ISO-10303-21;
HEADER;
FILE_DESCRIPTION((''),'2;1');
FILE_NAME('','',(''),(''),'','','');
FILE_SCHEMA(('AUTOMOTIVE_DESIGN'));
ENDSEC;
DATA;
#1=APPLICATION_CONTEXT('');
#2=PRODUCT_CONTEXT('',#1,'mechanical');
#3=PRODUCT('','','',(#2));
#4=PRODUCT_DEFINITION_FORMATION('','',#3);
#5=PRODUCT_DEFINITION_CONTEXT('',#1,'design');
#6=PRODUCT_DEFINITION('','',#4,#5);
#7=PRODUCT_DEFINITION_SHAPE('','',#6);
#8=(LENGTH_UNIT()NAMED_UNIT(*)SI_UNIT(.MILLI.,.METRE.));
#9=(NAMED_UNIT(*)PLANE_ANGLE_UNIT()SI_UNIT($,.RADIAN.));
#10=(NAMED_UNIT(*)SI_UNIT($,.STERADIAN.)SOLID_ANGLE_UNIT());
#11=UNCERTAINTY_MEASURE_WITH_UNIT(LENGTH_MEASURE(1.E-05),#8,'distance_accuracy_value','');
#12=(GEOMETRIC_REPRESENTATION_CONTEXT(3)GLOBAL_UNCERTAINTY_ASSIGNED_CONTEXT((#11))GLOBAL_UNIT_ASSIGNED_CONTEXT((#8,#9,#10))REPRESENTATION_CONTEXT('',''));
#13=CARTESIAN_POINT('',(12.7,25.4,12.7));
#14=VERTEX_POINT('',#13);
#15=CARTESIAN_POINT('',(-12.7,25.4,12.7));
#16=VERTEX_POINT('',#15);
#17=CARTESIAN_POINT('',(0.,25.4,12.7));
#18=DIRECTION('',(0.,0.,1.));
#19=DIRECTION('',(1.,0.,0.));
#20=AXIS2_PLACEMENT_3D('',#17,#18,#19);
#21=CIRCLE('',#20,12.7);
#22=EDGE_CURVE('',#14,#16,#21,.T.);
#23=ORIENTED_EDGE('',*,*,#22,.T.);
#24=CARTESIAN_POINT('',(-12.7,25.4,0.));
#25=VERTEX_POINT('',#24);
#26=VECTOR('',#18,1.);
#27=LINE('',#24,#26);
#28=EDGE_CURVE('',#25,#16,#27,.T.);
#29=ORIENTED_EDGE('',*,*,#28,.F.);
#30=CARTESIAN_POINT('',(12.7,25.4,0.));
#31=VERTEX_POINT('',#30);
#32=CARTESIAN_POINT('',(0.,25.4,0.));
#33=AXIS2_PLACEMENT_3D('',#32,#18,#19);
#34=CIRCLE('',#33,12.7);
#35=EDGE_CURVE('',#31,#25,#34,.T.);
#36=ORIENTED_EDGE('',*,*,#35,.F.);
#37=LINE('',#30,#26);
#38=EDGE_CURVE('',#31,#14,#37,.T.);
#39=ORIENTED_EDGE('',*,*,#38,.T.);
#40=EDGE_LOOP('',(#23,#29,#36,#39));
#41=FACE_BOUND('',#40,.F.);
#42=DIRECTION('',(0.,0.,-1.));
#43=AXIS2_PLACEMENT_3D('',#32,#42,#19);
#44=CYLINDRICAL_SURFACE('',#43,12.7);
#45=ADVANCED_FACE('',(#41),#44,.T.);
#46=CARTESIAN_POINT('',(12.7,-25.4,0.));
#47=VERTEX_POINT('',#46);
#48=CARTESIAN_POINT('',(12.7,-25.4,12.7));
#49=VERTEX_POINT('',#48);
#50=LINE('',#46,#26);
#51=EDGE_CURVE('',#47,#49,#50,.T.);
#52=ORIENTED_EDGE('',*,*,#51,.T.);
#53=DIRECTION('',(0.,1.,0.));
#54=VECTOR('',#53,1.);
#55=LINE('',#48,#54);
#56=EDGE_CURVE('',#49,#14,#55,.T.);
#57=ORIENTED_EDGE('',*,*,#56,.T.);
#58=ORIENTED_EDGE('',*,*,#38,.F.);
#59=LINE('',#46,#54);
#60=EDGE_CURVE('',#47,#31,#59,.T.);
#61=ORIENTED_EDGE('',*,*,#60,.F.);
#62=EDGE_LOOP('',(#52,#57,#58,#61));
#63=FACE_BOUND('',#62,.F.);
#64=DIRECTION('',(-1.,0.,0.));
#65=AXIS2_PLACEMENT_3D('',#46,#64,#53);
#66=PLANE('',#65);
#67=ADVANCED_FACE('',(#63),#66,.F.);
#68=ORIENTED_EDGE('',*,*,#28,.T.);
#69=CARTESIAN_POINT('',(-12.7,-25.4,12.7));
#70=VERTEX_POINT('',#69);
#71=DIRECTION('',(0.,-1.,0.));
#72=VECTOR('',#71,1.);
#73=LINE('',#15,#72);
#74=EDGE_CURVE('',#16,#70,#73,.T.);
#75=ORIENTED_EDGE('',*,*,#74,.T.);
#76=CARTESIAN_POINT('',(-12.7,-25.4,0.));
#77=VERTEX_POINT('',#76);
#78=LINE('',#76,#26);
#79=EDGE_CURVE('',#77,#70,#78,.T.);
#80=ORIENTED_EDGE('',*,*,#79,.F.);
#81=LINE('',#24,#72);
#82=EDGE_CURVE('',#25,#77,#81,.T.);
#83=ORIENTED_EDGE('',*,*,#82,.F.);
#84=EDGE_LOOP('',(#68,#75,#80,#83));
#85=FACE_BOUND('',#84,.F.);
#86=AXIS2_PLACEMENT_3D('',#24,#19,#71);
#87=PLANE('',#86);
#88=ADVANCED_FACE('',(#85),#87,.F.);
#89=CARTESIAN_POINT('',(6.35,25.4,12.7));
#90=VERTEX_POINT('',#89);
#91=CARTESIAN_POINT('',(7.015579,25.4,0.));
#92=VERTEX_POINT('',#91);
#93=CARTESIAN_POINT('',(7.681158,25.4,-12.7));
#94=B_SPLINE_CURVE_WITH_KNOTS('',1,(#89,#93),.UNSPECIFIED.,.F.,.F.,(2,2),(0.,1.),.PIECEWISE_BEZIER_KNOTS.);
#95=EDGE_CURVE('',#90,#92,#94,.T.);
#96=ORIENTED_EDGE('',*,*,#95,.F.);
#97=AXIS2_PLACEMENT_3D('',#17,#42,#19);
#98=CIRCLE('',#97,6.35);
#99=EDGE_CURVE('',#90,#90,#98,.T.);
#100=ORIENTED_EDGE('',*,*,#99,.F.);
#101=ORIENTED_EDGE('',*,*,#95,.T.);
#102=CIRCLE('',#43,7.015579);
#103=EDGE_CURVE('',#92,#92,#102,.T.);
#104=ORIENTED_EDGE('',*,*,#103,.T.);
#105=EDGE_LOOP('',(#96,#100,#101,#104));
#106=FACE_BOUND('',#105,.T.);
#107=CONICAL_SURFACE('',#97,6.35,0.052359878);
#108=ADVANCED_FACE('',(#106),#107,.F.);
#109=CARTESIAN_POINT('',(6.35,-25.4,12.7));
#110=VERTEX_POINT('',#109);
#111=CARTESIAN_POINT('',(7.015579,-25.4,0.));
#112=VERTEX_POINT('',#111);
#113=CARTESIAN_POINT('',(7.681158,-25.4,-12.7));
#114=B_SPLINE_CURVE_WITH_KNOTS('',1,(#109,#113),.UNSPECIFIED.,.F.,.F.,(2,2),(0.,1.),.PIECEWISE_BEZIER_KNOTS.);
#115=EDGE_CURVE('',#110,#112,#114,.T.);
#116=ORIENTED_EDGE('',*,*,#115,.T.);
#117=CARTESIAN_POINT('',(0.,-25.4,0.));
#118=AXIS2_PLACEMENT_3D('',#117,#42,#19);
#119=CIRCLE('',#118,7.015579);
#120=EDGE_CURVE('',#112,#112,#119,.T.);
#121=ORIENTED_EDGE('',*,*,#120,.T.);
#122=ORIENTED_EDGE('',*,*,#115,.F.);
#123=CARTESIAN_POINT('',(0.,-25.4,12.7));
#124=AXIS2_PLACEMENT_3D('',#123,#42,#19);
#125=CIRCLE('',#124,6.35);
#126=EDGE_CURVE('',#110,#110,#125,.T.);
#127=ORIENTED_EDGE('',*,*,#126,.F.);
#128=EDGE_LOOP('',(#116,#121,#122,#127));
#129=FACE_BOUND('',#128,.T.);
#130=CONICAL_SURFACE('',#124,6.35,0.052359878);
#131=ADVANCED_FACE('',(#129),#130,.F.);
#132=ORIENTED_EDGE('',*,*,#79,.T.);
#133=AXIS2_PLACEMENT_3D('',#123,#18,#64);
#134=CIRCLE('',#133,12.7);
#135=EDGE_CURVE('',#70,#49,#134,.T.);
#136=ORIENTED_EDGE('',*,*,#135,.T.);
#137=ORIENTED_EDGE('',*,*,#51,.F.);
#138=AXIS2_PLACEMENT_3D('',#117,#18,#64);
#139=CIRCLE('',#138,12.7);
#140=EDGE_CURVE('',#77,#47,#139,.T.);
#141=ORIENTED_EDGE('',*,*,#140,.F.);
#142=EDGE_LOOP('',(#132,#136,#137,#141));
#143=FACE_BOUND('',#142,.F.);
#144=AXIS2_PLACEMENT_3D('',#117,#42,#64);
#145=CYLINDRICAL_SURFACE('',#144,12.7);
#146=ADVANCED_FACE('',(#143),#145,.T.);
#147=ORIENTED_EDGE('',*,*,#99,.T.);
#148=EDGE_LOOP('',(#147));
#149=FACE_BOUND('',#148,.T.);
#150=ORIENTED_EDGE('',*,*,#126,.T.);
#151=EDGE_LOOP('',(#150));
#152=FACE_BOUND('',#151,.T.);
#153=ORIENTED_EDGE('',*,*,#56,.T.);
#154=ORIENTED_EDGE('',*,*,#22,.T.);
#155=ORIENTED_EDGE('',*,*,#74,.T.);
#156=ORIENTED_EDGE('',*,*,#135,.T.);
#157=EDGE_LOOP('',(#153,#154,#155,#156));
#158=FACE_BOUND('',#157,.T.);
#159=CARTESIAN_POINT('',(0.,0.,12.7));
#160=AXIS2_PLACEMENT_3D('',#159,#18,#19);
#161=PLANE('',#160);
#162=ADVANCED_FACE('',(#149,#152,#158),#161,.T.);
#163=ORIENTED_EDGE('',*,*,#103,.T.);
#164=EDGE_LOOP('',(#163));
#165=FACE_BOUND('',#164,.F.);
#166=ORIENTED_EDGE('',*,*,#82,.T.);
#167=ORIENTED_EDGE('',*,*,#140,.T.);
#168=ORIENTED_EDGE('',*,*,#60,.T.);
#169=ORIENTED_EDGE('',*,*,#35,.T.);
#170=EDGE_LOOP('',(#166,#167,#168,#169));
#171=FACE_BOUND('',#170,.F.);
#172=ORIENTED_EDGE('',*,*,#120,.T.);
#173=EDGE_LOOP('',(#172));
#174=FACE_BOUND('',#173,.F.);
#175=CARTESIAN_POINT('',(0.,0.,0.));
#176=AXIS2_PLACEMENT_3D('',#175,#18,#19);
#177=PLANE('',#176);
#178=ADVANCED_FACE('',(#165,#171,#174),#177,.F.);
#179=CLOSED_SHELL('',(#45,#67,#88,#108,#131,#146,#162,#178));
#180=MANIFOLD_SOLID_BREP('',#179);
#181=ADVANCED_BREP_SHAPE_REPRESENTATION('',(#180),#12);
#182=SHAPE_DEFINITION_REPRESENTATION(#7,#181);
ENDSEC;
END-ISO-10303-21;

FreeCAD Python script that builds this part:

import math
import FreeCAD as App
import Part
import Sketcher
from FreeCAD import Vector
Q = App.Units.Quantity

doc = App.newDocument("Part")
params = doc.addObject("Spreadsheet::Sheet", "Params")
for row, (alias, value) in enumerate([
    ("sketch1_radius", "0.5 in"),
    ("sketch1_height", "2 in"),
    ("pad1_length", "0.5 in"),
    ("sketch2_diameter", "0.5 in"),
    ("pocket1_length", "1 in"),
    ("pocket1_taper", "3 deg"),
], start=1):
    params.set(f"A{row}", alias)
    params.set(f"B{row}", "=" + value)
    params.setAlias(f"B{row}", alias)

body = doc.addObject("PartDesign::Body", "Body")

sketch1 = doc.addObject("Sketcher::SketchObject", "Sketch")
body.addObject(sketch1)
sketch1.AttachmentSupport = (doc.XY_Plane, [""])
sketch1.MapMode = "FlatFace"
sketch1.addGeometry([
    Part.ArcOfCircle(Part.Circle(Vector(0, -25, 0), Vector(0, 0, 1), 13), math.radians(180), math.radians(360)),
    Part.LineSegment(Vector(13, -25, 0), Vector(13, 25, 0)),
    Part.ArcOfCircle(Part.Circle(Vector(0, 25, 0), Vector(0, 0, 1), 13), math.radians(0), math.radians(180)),
    Part.LineSegment(Vector(-13, 25, 0), Vector(-13, -25, 0)),
], False)
sketch1.addConstraint([
    Sketcher.Constraint("Tangent", 0, 2, 1, 1),
    Sketcher.Constraint("Tangent", 1, 2, 2, 1),
    Sketcher.Constraint("Tangent", 2, 2, 3, 1),
    Sketcher.Constraint("Tangent", 3, 2, 0, 1),
    Sketcher.Constraint("Vertical", 1),
    Sketcher.Constraint("Vertical", 3),
    Sketcher.Constraint("Symmetric", 0, 3, 2, 3, -1, 1),
    Sketcher.Constraint("Radius", 0, Q("0.5 in")),
    Sketcher.Constraint("DistanceY", 1, 1, 1, 2, Q("2 in")),
])
sketch1.setExpression("Constraints[7]", "Params.sketch1_radius")
sketch1.setExpression("Constraints[8]", "Params.sketch1_height")
pad1 = doc.addObject("PartDesign::Pad", "Pad")
body.addObject(pad1)
pad1.Profile = sketch1
pad1.setExpression("Length", "Params.pad1_length")

sketch2 = doc.addObject("Sketcher::SketchObject", "Sketch001")
body.addObject(sketch2)
sketch2.AttachmentSupport = (doc.XY_Plane, [""])
sketch2.MapMode = "FlatFace"
sketch2.AttachmentOffset = App.Placement(Vector(0, 0, 0.5 * 25.4), App.Rotation())
sketch2.addGeometry([
    Part.Circle(Vector(0, 25, 0), Vector(0, 0, 1), 6),
    Part.Circle(Vector(0, -25, 0), Vector(0, 0, 1), 6),
], False)
sketch2.addConstraint([
    Sketcher.Constraint("Equal", 0, 1),
    Sketcher.Constraint("Symmetric", 0, 3, 1, 3, -1, 1),
    Sketcher.Constraint("PointOnObject", 0, 3, -2),
    Sketcher.Constraint("Diameter", 0, Q("0.5 in")),
    Sketcher.Constraint("DistanceY", -1, 1, 0, 3, Q("1 in")),
])
sketch2.setExpression("Constraints[3]", "Params.sketch2_diameter")
pocket1 = doc.addObject("PartDesign::Pocket", "Pocket")
body.addObject(pocket1)
pocket1.Profile = sketch2
pocket1.setExpression("Length", "Params.pocket1_length")
pocket1.setExpression("TaperAngle", "Params.pocket1_taper")

doc.recompute()
